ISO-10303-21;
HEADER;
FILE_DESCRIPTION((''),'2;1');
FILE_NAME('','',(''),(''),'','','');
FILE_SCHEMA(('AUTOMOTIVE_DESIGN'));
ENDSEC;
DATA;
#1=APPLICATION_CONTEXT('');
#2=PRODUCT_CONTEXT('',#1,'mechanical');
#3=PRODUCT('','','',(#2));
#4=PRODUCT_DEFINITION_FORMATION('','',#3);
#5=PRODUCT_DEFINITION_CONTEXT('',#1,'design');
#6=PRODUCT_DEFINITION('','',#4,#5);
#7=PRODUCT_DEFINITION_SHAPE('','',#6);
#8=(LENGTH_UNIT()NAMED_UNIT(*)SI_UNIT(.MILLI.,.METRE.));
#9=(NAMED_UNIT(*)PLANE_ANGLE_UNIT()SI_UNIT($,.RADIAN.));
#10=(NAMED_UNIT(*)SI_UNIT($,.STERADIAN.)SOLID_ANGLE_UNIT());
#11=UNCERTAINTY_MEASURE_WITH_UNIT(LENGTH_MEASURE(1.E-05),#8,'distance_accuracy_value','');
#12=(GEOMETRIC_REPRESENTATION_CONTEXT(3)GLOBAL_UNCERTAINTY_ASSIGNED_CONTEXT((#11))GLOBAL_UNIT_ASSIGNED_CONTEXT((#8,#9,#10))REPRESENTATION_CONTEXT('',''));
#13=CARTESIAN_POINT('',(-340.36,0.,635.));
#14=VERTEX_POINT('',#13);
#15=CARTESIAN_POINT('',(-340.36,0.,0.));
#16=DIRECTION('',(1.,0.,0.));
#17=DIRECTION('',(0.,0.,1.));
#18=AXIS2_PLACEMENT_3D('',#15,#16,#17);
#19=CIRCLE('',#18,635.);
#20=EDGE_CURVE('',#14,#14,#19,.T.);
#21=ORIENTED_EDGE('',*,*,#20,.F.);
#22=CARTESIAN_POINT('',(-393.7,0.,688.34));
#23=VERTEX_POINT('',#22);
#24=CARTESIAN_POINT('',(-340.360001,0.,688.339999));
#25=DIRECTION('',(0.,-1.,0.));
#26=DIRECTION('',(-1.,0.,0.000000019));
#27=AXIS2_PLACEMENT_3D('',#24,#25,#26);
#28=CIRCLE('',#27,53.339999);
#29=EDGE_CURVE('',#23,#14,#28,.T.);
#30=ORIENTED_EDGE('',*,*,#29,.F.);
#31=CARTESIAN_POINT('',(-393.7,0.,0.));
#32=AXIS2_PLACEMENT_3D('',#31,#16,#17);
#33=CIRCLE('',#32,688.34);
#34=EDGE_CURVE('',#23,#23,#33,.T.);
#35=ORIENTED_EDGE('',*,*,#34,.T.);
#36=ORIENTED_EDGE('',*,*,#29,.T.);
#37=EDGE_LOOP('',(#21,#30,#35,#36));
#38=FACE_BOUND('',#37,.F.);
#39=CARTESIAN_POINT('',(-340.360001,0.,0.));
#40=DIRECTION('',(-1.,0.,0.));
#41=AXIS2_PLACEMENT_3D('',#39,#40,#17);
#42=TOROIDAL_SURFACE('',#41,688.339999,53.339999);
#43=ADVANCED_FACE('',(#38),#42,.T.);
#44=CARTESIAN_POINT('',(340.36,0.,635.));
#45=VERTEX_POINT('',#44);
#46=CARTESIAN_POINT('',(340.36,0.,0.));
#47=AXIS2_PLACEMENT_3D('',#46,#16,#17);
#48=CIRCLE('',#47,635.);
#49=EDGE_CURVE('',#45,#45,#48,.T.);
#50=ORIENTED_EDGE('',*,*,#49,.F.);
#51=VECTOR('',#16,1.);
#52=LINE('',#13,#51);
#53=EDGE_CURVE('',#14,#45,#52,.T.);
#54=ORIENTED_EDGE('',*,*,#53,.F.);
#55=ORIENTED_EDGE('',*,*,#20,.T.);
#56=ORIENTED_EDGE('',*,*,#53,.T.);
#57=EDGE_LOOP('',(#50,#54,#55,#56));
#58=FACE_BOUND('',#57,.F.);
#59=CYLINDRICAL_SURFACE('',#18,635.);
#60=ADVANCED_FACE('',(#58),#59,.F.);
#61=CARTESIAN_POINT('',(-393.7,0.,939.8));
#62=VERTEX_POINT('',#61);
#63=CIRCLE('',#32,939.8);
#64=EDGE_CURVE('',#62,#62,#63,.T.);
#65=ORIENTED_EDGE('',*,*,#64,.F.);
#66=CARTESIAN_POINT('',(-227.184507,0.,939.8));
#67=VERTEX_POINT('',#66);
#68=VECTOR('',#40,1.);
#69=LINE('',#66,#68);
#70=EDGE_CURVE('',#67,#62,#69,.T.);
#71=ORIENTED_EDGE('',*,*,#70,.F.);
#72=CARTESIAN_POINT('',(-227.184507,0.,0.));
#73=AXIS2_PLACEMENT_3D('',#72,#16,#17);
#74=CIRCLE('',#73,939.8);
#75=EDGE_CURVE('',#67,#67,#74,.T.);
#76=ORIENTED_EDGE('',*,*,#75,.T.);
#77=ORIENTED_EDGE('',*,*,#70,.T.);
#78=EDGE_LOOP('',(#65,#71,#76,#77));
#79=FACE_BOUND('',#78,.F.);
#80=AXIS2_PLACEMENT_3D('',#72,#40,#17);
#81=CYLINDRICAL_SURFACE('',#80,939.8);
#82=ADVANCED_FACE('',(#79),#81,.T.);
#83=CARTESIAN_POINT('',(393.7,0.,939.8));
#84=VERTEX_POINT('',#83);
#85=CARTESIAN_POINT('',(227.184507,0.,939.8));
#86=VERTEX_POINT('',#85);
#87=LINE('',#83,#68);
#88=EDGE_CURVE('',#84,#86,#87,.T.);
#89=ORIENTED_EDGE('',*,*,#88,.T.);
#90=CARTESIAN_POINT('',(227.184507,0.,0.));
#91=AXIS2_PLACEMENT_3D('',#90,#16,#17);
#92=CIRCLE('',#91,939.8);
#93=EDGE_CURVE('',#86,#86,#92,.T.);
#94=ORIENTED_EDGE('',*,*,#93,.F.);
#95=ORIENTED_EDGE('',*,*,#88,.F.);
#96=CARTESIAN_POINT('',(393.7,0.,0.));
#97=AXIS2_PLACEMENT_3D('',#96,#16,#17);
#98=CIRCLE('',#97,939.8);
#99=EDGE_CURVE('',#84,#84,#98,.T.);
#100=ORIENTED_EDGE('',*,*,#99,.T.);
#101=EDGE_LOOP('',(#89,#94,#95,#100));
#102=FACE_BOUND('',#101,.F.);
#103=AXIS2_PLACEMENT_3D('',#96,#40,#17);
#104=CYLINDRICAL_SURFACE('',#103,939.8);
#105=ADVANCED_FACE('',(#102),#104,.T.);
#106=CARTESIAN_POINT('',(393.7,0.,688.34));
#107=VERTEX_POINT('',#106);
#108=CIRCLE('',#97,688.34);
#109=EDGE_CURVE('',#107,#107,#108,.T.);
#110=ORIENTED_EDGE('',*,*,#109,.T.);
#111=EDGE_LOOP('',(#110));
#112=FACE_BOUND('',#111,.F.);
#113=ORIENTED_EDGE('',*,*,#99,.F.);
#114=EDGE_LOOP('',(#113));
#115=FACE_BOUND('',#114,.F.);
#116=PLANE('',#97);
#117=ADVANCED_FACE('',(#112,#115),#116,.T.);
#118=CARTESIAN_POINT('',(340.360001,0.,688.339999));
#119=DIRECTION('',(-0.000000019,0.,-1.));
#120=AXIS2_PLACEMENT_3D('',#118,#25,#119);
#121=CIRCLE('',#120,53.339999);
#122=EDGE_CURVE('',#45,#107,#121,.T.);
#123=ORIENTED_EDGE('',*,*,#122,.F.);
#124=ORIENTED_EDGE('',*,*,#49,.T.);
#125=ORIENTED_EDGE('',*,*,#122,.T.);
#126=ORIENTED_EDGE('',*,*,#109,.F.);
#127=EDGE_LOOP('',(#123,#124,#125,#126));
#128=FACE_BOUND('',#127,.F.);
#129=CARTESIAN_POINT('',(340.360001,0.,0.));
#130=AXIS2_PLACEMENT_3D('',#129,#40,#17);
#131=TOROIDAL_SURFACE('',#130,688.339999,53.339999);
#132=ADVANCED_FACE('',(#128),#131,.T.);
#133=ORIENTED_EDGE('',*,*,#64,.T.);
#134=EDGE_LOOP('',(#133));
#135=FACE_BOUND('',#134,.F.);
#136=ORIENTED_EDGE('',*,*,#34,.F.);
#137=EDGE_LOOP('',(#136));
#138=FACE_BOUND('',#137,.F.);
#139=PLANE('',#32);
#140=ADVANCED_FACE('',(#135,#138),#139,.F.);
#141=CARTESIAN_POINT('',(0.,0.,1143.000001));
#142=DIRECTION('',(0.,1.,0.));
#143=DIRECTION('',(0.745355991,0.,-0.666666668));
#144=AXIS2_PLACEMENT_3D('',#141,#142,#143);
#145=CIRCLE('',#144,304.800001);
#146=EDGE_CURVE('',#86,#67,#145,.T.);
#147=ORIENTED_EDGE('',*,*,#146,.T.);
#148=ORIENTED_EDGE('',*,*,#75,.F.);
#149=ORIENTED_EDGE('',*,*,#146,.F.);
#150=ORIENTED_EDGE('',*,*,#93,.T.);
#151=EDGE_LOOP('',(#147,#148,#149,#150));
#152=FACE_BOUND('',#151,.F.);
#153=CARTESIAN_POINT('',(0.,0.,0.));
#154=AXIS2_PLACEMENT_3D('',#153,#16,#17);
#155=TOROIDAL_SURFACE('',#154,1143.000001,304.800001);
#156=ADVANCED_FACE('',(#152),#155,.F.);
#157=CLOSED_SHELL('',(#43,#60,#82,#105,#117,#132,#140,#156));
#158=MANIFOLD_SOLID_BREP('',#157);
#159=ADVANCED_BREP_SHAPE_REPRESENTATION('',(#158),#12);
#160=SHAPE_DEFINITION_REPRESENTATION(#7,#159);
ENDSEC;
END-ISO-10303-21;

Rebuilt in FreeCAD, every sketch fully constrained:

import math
import FreeCAD as App
import Part
import Sketcher

V = App.Vector
Q = App.Units.Quantity

doc = App.newDocument("Part")
body = doc.addObject("PartDesign::Body", "Body")

sketch1 = doc.addObject("Sketcher::SketchObject", "Sketch")
body.addObject(sketch1)
sketch1.AttachmentSupport = (doc.XZ_Plane, [""])
sketch1.MapMode = "FlatFace"
sketch1.addGeometry(Part.ArcOfCircle(Part.Circle(V(-340.360001, 688.339999, 0), V(0, 0, 1), 53.339999), math.radians(179.999999), math.radians(270.000001)), False)
sketch1.addGeometry(Part.LineSegment(V(-340.36, 635, 0), V(340.36, 635, 0)), False)
sketch1.addGeometry(Part.ArcOfCircle(Part.Circle(V(340.360001, 688.339999, 0), V(0, 0, 1), 53.339999), math.radians(-90.000001), math.radians(0.000001)), False)
sketch1.addGeometry(Part.LineSegment(V(393.7, 688.34, 0), V(393.7, 939.8, 0)), False)
sketch1.addGeometry(Part.LineSegment(V(393.7, 939.8, 0), V(227.184507, 939.8, 0)), False)
sketch1.addGeometry(Part.ArcOfCircle(Part.Circle(V(0, 1143.000001, 0), V(0, 0, 1), 304.800001), math.radians(-138.189685), math.radians(-41.810315)), False)
sketch1.addGeometry(Part.LineSegment(V(-227.184507, 939.8, 0), V(-393.7, 939.8, 0)), False)
sketch1.addGeometry(Part.LineSegment(V(-393.7, 939.8, 0), V(-393.7, 688.34, 0)), False)
sketch1.addConstraint(Sketcher.Constraint("Tangent", 0, 2, 1, 1))
sketch1.addConstraint(Sketcher.Constraint("Tangent", 1, 2, 2, 1))
sketch1.addConstraint(Sketcher.Constraint("Tangent", 2, 2, 3, 1))
sketch1.addConstraint(Sketcher.Constraint("Coincident", 3, 2, 4, 1))
sketch1.addConstraint(Sketcher.Constraint("Coincident", 4, 2, 5, 2))
sketch1.addConstraint(Sketcher.Constraint("Coincident", 5, 1, 6, 1))
sketch1.addConstraint(Sketcher.Constraint("Coincident", 6, 2, 7, 1))
sketch1.addConstraint(Sketcher.Constraint("Tangent", 7, 2, 0, 1))
sketch1.addConstraint(Sketcher.Constraint("Horizontal", 1))
sketch1.addConstraint(Sketcher.Constraint("Vertical", 3))
sketch1.addConstraint(Sketcher.Constraint("Horizontal", 4))
sketch1.addConstraint(Sketcher.Constraint("Horizontal", 6))
sketch1.addConstraint(Sketcher.Constraint("Vertical", 7))
sketch1.addConstraint(Sketcher.Constraint("Equal", 0, 2))
sketch1.addConstraint(Sketcher.Constraint("Symmetric", 4, 2, 5, 1, -2))
sketch1.addConstraint(Sketcher.Constraint("Equal", 4, 6))
sketch1.addConstraint(Sketcher.Constraint("Radius", 5, Q("12 in")))
sketch1.addConstraint(Sketcher.Constraint("Radius", 0, Q("2.1 in")))
sketch1.addConstraint(Sketcher.Constraint("DistanceX", 1, 1, 1, 2, Q("26.8 in")))
sketch1.addConstraint(Sketcher.Constraint("DistanceY", 3, 1, 3, 2, Q("9.9 in")))
sketch1.addConstraint(Sketcher.Constraint("DistanceY", -1, 1, 5, 3, Q("45 in")))
sketch1.addConstraint(Sketcher.Constraint("DistanceY", -1, 1, 0, 2, Q("25 in")))
revolution = doc.addObject("PartDesign::Revolution", "Revolution")
body.addObject(revolution)
revolution.Profile = sketch1
revolution.ReferenceAxis = (sketch1, ["H_Axis"])
revolution.Angle = 360

doc.recompute()
